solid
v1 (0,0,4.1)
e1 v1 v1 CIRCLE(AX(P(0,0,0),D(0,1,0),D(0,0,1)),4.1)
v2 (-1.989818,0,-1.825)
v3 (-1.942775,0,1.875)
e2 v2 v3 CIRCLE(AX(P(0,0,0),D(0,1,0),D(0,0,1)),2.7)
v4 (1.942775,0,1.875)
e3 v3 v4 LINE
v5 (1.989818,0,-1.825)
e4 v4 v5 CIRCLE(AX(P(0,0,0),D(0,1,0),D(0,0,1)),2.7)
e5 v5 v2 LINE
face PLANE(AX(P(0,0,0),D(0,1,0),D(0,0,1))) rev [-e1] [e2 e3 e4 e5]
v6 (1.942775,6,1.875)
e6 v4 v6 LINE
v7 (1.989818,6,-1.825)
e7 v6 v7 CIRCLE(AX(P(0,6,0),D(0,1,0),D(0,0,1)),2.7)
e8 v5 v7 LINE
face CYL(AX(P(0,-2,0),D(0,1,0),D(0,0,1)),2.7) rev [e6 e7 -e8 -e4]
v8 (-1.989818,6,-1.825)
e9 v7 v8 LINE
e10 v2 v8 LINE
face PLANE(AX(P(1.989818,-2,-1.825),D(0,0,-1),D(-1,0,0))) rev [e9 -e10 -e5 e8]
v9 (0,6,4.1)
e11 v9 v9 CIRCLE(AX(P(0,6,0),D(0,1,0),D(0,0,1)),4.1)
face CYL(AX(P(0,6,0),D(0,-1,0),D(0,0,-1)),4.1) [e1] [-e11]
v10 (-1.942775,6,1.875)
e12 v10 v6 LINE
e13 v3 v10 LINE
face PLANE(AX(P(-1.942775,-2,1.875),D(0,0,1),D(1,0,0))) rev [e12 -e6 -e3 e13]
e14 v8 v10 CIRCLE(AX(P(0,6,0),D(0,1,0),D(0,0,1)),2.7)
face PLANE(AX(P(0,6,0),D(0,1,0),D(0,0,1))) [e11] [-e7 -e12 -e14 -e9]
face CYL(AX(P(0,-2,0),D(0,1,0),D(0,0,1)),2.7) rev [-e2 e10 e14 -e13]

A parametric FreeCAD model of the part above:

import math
import FreeCAD as App
import Part
import Sketcher
from FreeCAD import Vector
Q = App.Units.Quantity

doc = App.newDocument("Part")
body = doc.addObject("PartDesign::Body", "Body")

# Sketch on XZ plane
sketch1 = body.newObject("Sketcher::SketchObject", "Sketch")
sketch1.AttachmentSupport = (doc.getObject("XZ_Plane"), [""])
sketch1.MapMode = "FlatFace"
sketch1.addGeometry(Part.Circle(Vector(0, 0, 0), Vector(0, 0, 1), 4.1), False)
sketch1.addConstraint(Sketcher.Constraint("Coincident", 0, 3, -1, 1))
sketch1.addConstraint(Sketcher.Constraint("Diameter", 0, Q("8.2 mm")))
pad1 = body.newObject("PartDesign::Pad", "Pad")
pad1.Profile = sketch1
pad1.Length = 6
pad1.Reversed = True

# Sketch on XZ plane
sketch2 = body.newObject("Sketcher::SketchObject", "Sketch001")
sketch2.AttachmentSupport = (doc.getObject("XZ_Plane"), [""])
sketch2.MapMode = "FlatFace"
sketch2.AttachmentOffset = App.Placement(Vector(0, 0, -6), App.Rotation())
sketch2.addGeometry(Part.LineSegment(Vector(1.989818, -1.825, 0), Vector(-1.989818, -1.825, 0)), False)
sketch2.addGeometry(Part.ArcOfCircle(Part.Circle(Vector(0, 0, 0), Vector(0, 0, 1), 2.7), math.radians(136.017037), math.radians(222.526095)), False)
sketch2.addGeometry(Part.LineSegment(Vector(-1.942775, 1.875, 0), Vector(1.942775, 1.875, 0)), False)
sketch2.addGeometry(Part.ArcOfCircle(Part.Circle(Vector(0, 0, 0), Vector(0, 0, 1), 2.7), math.radians(-42.526095), math.radians(43.982963)), False)
sketch2.addConstraint(Sketcher.Constraint("Coincident", 0, 2, 1, 2))
sketch2.addConstraint(Sketcher.Constraint("Coincident", 1, 1, 2, 1))
sketch2.addConstraint(Sketcher.Constraint("Coincident", 2, 2, 3, 2))
sketch2.addConstraint(Sketcher.Constraint("Coincident", 3, 1, 0, 1))
sketch2.addConstraint(Sketcher.Constraint("Horizontal", 0))
sketch2.addConstraint(Sketcher.Constraint("Horizontal", 2))
sketch2.addConstraint(Sketcher.Constraint("Coincident", 1, 3, -1, 1))
sketch2.addConstraint(Sketcher.Constraint("Coincident", 3, 3, -1, 1))
sketch2.addConstraint(Sketcher.Constraint("Equal", 1, 3))
sketch2.addConstraint(Sketcher.Constraint("Radius", 1, Q("2.7 mm")))
sketch2.addConstraint(Sketcher.Constraint("DistanceY", 0, 2, 1, 1, Q("3.7 mm")))
sketch2.addConstraint(Sketcher.Constraint("DistanceY", 0, 2, -1, 1, Q("1.825 mm")))
pocket1 = body.newObject("PartDesign::Pocket", "Pocket")
pocket1.Profile = sketch2
pocket1.Length = 8
pocket1.Reversed = True

doc.recompute()
